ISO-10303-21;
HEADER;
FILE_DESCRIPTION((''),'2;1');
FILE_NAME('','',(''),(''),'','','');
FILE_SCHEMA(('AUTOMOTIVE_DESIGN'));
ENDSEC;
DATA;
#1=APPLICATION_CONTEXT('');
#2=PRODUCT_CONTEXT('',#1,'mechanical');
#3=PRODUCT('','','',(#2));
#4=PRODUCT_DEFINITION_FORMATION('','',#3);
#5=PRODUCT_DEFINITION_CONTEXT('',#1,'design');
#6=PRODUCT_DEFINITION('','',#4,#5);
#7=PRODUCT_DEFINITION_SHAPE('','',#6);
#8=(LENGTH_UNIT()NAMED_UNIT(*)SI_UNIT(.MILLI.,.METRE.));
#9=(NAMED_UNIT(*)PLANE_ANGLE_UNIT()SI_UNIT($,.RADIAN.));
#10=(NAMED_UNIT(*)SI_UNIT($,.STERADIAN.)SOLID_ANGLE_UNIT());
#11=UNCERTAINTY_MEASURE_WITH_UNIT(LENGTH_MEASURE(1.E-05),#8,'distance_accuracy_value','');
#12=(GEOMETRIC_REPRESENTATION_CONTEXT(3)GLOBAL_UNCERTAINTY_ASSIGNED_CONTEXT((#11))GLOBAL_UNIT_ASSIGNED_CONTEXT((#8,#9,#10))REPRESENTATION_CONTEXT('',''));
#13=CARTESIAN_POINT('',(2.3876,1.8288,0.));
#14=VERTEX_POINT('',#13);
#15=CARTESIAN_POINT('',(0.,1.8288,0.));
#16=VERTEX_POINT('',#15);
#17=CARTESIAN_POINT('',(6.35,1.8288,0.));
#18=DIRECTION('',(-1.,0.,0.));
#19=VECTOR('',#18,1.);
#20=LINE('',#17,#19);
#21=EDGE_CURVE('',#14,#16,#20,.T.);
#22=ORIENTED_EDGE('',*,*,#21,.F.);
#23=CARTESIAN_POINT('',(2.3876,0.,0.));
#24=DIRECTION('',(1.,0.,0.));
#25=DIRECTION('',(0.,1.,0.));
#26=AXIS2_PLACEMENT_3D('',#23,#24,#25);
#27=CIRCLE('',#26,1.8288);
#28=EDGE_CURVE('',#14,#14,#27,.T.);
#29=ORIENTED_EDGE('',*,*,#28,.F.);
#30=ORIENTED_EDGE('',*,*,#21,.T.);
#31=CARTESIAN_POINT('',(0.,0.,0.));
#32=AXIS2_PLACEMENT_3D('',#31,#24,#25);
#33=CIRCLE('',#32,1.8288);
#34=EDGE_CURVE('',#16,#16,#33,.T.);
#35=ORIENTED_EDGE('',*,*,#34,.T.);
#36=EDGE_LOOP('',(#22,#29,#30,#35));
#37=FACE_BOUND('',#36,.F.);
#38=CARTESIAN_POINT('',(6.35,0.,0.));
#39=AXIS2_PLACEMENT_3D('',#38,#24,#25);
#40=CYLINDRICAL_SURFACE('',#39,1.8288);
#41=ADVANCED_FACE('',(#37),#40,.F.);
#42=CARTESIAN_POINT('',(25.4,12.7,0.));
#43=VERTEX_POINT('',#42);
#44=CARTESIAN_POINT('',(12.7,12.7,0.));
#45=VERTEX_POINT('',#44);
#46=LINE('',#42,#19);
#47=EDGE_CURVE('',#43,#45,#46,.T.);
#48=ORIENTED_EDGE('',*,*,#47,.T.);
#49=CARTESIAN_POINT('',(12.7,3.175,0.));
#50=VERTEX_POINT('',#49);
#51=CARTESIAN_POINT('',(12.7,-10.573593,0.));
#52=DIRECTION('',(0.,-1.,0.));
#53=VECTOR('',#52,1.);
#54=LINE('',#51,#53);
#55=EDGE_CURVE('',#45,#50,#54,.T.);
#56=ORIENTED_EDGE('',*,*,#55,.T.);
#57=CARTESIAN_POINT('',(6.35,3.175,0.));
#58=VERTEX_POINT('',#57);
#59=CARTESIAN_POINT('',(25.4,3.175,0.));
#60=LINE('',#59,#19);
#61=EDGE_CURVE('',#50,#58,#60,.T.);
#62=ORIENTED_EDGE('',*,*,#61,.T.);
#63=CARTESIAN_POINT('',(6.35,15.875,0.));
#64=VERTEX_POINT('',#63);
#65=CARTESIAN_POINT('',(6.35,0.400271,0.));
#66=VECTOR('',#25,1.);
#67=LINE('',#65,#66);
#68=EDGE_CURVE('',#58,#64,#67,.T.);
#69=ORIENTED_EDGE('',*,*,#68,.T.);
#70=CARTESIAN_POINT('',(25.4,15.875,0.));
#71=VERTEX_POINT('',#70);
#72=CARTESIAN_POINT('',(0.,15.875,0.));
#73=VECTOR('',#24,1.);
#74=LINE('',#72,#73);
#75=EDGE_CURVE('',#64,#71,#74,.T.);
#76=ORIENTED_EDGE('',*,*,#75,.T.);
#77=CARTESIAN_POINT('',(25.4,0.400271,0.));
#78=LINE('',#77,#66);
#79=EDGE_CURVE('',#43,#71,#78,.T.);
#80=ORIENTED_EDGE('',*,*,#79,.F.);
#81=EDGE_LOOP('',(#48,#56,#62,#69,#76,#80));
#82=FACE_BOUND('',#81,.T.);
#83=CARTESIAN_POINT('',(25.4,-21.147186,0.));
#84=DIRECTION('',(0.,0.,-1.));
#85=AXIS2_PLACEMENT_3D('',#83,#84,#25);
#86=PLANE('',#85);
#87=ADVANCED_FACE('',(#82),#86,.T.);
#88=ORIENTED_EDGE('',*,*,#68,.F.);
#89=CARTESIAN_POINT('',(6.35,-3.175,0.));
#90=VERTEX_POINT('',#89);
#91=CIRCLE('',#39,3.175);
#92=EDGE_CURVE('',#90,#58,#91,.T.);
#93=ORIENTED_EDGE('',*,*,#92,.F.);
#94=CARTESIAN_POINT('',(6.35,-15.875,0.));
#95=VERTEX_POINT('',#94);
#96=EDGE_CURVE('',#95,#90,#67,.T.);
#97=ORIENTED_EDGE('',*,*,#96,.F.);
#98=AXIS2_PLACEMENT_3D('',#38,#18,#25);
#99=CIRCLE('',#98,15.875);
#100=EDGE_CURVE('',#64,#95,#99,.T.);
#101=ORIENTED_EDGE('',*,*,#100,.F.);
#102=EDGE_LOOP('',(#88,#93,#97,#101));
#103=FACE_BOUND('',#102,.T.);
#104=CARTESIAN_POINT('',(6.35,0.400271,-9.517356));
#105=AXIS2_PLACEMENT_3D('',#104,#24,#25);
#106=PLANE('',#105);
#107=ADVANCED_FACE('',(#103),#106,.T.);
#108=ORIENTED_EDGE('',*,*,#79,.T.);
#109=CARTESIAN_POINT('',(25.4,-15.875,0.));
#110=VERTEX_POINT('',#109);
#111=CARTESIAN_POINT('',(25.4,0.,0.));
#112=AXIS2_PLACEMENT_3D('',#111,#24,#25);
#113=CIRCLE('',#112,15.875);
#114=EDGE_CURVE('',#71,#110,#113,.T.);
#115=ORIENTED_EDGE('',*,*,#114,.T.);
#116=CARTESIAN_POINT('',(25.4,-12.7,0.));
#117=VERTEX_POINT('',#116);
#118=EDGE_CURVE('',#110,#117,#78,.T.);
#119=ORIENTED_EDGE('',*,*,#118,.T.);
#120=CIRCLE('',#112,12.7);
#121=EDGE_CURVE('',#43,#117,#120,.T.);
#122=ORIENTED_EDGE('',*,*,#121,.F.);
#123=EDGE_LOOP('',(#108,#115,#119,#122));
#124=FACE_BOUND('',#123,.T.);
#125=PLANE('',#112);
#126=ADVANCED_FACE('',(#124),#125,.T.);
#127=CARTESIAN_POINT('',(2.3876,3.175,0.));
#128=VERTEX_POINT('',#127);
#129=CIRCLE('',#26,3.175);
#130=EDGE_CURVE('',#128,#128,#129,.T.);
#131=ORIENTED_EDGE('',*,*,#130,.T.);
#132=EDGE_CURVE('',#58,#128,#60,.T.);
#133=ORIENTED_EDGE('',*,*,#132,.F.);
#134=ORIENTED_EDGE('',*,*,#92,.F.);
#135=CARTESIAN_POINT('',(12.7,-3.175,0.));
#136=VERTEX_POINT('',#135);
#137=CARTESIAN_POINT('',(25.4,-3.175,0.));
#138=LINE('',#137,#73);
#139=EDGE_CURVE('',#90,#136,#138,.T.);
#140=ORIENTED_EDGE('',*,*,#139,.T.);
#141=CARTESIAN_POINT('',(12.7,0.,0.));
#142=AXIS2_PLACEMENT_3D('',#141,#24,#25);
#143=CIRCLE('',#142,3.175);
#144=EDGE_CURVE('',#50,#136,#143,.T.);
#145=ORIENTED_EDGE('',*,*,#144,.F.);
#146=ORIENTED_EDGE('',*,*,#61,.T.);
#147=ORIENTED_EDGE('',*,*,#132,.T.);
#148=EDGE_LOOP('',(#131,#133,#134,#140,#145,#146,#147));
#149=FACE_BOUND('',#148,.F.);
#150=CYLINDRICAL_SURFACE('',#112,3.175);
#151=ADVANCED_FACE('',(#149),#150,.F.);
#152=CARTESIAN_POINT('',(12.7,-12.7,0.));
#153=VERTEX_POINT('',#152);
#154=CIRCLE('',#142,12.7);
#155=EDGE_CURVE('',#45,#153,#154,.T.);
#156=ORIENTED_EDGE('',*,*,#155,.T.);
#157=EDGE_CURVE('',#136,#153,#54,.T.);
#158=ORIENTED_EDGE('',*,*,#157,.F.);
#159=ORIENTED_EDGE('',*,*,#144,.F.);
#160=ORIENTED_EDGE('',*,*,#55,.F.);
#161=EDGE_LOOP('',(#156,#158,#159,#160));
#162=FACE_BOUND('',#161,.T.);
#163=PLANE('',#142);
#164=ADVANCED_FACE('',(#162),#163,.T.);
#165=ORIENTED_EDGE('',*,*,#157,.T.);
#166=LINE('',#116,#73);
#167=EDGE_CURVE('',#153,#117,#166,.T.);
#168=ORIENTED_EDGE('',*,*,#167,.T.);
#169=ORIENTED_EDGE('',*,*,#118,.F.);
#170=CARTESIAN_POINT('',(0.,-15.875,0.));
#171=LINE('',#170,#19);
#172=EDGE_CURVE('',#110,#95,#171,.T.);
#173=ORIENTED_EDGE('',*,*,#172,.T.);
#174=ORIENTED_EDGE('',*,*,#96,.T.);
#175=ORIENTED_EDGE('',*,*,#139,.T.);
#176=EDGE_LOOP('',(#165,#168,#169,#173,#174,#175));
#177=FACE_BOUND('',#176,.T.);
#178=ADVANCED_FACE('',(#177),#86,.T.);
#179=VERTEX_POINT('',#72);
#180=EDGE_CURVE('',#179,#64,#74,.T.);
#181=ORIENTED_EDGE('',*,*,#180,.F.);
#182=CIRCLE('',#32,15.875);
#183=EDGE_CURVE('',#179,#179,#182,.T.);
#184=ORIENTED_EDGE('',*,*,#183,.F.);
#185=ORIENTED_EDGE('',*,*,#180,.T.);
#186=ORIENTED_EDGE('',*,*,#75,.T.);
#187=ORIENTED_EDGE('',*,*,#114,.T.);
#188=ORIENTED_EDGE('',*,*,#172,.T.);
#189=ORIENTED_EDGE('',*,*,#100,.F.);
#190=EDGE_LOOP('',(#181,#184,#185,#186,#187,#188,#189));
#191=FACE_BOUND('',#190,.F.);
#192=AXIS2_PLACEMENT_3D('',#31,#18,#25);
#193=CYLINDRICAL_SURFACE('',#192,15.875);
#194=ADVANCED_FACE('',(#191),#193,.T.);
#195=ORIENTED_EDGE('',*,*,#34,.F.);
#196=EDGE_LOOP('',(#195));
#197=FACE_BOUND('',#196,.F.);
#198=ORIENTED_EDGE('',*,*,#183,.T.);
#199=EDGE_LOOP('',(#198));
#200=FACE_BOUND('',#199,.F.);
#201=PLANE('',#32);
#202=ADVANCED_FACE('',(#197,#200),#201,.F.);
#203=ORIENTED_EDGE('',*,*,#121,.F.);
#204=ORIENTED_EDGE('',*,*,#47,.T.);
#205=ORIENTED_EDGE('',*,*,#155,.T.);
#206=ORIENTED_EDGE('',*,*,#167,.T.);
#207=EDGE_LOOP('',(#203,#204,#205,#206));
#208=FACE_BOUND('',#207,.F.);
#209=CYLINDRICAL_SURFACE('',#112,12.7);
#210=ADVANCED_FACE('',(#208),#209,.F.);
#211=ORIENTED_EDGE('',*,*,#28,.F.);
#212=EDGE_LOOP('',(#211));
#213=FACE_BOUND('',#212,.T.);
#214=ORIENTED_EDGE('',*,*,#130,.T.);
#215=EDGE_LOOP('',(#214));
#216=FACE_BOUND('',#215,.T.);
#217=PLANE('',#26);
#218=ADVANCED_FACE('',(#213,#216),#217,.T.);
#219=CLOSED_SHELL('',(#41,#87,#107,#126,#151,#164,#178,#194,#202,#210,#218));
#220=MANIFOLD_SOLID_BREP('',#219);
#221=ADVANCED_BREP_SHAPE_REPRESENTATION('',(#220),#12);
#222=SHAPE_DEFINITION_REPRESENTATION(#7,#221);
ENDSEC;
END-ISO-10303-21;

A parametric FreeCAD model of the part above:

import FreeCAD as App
import Part
import Sketcher

V = App.Vector
Q = App.Units.Quantity


def add_polygon(sketch, points):
    """Adds a closed chain of lines whose ends are joined by coincident constraints."""
    first, n = sketch.GeometryCount, len(points)
    for a, b in zip(points, points[1:] + points[:1]):
        sketch.addGeometry(Part.LineSegment(App.Vector(*a, 0), App.Vector(*b, 0)), False)
    for i in range(n):
        sketch.addConstraint(Sketcher.Constraint("Coincident", first + i, 2, first + (i + 1) % n, 1))

doc = App.newDocument("Part")
body = doc.addObject("PartDesign::Body", "Body")

sketch1 = body.newObject("Sketcher::SketchObject", "Sketch")
sketch1.AttachmentSupport = (doc.getObject("YZ_Plane"), [""])
sketch1.MapMode = "FlatFace"
sketch1.addGeometry(Part.Circle(V(0, 0, 0), V(0, 0, 1), 16), False)
sketch1.addConstraint([
    Sketcher.Constraint("Coincident", 0, 3, -1, 1),
    Sketcher.Constraint("Diameter", 0, Q("1.25 in")),
])
pad1 = body.newObject("PartDesign::Pad", "Pad")
pad1.Profile = sketch1
pad1.Length = Q("1 in")

sketch2 = body.newObject("Sketcher::SketchObject", "Sketch001")
sketch2.AttachmentSupport = (doc.getObject("YZ_Plane"), [""])
sketch2.MapMode = "FlatFace"
sketch2.AttachmentOffset = App.Placement(V(0, 0, 1 * 25.4), App.Rotation())
add_polygon(sketch2, [(-21, 0), (-21, -19), (22, -19), (22, 0)])
sketch2.addConstraint([
    Sketcher.Constraint("Vertical", 0),
    Sketcher.Constraint("Horizontal", 1),
    Sketcher.Constraint("Vertical", 2),
    Sketcher.Constraint("Horizontal", 3),
    Sketcher.Constraint("PointOnObject", 2, 2, -1),
    Sketcher.Constraint("DistanceY", 0, 2, 0, 1, Q("19.034712 mm")),
    Sketcher.Constraint("DistanceX", 1, 1, 1, 2, Q("43.094914 mm")),
    Sketcher.Constraint("DistanceX", -1, 1, 1, 2, Q("21.947728 mm")),
])
pocket1 = body.newObject("PartDesign::Pocket", "Pocket")
pocket1.Profile = sketch2
pocket1.Length = Q("0.75 in")

sketch3 = body.newObject("Sketcher::SketchObject", "Sketch002")
sketch3.AttachmentSupport = (doc.getObject("YZ_Plane"), [""])
sketch3.MapMode = "FlatFace"
sketch3.AttachmentOffset = App.Placement(V(0, 0, 0.25 * 25.4), App.Rotation())
sketch3.addGeometry(Part.Circle(V(0, 0, 0), V(0, 0, 1), 1.8), False)
sketch3.addConstraint([
    Sketcher.Constraint("Coincident", 0, 3, -1, 1),
    Sketcher.Constraint("Diameter", 0, Q("0.144 in")),
])
pocket2 = body.newObject("PartDesign::Pocket", "Pocket001")
pocket2.Profile = sketch3
pocket2.Type = "ThroughAll"

sketch4 = body.newObject("Sketcher::SketchObject", "Sketch003")
sketch4.AttachmentSupport = (doc.getObject("YZ_Plane"), [""])
sketch4.MapMode = "FlatFace"
sketch4.AttachmentOffset = App.Placement(V(0, 0, 1 * 25.4), App.Rotation())
sketch4.addGeometry(Part.Circle(V(0, 0, 0), V(0, 0, 1), 13), False)
sketch4.addConstraint([
    Sketcher.Constraint("Coincident", 0, 3, -1, 1),
    Sketcher.Constraint("Diameter", 0, Q("1 in")),
])
pocket3 = body.newObject("PartDesign::Pocket", "Pocket002")
pocket3.Profile = sketch4
pocket3.Length = Q("0.5 in")

sketch5 = body.newObject("Sketcher::SketchObject", "Sketch004")
sketch5.AttachmentSupport = (doc.getObject("YZ_Plane"), [""])
sketch5.MapMode = "FlatFace"
sketch5.AttachmentOffset = App.Placement(V(0, 0, 1 * 25.4), App.Rotation())
sketch5.addGeometry(Part.Circle(V(0, 0, 0), V(0, 0, 1), 3.2), False)
sketch5.addConstraint([
    Sketcher.Constraint("Coincident", 0, 3, -1, 1),
    Sketcher.Constraint("Diameter", 0, Q("0.25 in")),
])
pocket4 = body.newObject("PartDesign::Pocket", "Pocket003")
pocket4.Profile = sketch5
pocket4.Length = Q("0.906 in")

doc.recompute()
